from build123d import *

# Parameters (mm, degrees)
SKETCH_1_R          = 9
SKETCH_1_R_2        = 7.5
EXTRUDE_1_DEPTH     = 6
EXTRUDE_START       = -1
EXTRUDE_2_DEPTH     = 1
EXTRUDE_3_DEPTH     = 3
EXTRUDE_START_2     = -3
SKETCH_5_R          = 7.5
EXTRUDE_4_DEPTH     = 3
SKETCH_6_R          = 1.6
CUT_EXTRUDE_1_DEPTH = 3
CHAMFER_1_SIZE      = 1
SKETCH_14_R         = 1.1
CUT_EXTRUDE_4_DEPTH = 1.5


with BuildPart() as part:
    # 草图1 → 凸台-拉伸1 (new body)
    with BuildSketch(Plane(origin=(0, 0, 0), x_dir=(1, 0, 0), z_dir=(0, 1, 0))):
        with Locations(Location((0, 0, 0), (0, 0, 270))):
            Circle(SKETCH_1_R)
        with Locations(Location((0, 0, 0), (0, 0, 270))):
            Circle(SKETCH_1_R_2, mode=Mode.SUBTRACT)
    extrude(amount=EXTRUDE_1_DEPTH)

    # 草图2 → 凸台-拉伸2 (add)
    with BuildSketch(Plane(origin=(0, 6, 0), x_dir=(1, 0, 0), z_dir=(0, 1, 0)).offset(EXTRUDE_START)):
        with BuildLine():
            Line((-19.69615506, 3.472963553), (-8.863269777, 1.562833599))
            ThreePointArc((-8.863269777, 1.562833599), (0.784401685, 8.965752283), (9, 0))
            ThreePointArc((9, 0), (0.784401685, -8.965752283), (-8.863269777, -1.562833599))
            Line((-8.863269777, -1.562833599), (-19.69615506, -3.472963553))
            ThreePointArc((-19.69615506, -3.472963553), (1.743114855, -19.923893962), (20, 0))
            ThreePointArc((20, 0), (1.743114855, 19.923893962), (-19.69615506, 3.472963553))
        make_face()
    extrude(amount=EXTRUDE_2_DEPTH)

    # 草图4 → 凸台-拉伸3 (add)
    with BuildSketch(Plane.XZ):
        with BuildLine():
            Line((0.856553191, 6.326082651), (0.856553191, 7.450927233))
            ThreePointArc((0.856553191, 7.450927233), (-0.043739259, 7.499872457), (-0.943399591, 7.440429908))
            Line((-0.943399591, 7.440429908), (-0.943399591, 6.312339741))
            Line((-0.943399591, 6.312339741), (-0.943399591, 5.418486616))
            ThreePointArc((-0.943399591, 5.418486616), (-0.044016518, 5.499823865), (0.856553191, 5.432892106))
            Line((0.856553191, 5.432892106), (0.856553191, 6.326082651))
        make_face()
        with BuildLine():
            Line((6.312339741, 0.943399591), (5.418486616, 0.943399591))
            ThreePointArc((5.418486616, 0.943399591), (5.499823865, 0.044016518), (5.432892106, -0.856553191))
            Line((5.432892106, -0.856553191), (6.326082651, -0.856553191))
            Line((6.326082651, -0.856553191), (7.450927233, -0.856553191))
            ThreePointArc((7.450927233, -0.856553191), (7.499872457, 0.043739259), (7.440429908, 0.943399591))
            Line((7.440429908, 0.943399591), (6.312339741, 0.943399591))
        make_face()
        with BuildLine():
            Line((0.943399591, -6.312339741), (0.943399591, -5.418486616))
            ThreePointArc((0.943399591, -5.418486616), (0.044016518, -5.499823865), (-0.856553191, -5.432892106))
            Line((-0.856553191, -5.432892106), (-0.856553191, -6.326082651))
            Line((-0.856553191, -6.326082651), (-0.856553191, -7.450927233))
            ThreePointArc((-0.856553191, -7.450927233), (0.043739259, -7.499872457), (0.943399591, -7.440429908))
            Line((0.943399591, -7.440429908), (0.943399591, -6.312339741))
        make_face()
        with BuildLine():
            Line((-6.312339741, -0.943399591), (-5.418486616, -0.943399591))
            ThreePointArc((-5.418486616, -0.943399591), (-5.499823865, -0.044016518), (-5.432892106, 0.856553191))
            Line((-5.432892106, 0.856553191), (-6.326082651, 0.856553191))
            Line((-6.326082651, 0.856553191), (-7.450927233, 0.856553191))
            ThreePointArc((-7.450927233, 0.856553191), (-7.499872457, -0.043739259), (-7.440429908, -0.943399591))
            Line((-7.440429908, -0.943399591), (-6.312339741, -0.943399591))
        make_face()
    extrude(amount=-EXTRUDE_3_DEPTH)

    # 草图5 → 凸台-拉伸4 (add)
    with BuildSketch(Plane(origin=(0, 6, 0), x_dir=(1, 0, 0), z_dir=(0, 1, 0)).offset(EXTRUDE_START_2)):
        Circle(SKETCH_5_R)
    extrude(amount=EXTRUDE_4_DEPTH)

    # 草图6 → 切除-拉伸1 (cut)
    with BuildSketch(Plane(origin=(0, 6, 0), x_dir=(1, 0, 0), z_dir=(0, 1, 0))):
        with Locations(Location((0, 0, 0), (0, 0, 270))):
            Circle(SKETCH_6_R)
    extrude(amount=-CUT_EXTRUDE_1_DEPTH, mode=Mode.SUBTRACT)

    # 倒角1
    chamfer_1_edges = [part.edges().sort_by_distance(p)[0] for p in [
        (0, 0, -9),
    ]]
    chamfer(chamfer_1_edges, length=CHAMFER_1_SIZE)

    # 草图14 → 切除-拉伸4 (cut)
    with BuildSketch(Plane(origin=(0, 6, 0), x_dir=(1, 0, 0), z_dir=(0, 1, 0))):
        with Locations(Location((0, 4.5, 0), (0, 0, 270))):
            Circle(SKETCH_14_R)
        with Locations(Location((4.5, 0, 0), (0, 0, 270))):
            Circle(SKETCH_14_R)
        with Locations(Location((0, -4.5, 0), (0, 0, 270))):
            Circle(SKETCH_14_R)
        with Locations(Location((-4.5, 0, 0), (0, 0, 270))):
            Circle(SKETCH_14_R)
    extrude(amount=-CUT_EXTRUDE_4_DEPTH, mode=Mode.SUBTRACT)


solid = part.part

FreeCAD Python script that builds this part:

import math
import FreeCAD as App
import Part
import Sketcher
from FreeCAD import Vector
Q = App.Units.Quantity


def edges_at(feature, points):
    """Names of the edges that pass closest to the given points."""
    edges = feature.Shape.Edges
    near = lambda p: min(range(len(edges)), key=lambda i: edges[i].distToShape(Part.Vertex(*p))[0])
    return sorted({f"Edge{near(p) + 1}" for p in points})

doc = App.newDocument("Part")
body = doc.addObject("PartDesign::Body", "Body")

# Sketch on XZ plane
sketch1 = body.newObject("Sketcher::SketchObject", "Sketch")
sketch1.AttachmentSupport = (doc.getObject("XZ_Plane"), [""])
sketch1.MapMode = "FlatFace"
sketch1.addGeometry(Part.Circle(Vector(0, 0, 0), Vector(0, 0, 1), 9), False)
sketch1.addGeometry(Part.Circle(Vector(0, 0, 0), Vector(0, 0, 1), 7.5), False)
sketch1.addConstraint(Sketcher.Constraint("Coincident", 0, 3, -1, 1))
sketch1.addConstraint(Sketcher.Constraint("Coincident", 1, 3, -1, 1))
sketch1.addConstraint(Sketcher.Constraint("Diameter", 0, 18.0))
sketch1.addConstraint(Sketcher.Constraint("Diameter", 1, 15.0))
pad1 = body.newObject("PartDesign::Pad", "Pad")
pad1.Profile = sketch1
pad1.Length = 6
pad1.Reversed = True

# Sketch on XZ plane
sketch2 = body.newObject("Sketcher::SketchObject", "Sketch001")
sketch2.AttachmentSupport = (doc.getObject("XZ_Plane"), [""])
sketch2.MapMode = "FlatFace"
sketch2.AttachmentOffset = App.Placement(Vector(0, 0, -5), App.Rotation())
sketch2.addGeometry(Part.LineSegment(Vector(-19.696155, -3.472964, 0), Vector(-8.86327, -1.562834, 0)), False)
sketch2.addGeometry(Part.ArcOfCircle(Part.Circle(Vector(0, 0, 0), Vector(0, 0, 1), 9), math.radians(-170), math.radians(0)), False)
sketch2.addGeometry(Part.ArcOfCircle(Part.Circle(Vector(0, 0, 0), Vector(0, 0, 1), 9), math.radians(0), math.radians(170)), False)
sketch2.addGeometry(Part.LineSegment(Vector(-8.86327, 1.562834, 0), Vector(-19.696155, 3.472964, 0)), False)
sketch2.addGeometry(Part.ArcOfCircle(Part.Circle(Vector(0, 0, 0), Vector(0, 0, 1), 20), math.radians(0), math.radians(170)), False)
sketch2.addGeometry(Part.ArcOfCircle(Part.Circle(Vector(0, 0, 0), Vector(0, 0, 1), 20), math.radians(-170), math.radians(0)), False)
sketch2.addConstraint(Sketcher.Constraint("Coincident", 0, 2, 1, 1))
sketch2.addConstraint(Sketcher.Constraint("Tangent", 1, 2, 2, 1))
sketch2.addConstraint(Sketcher.Constraint("Coincident", 2, 2, 3, 1))
sketch2.addConstraint(Sketcher.Constraint("Coincident", 3, 2, 4, 2))
sketch2.addConstraint(Sketcher.Constraint("Tangent", 4, 1, 5, 2))
sketch2.addConstraint(Sketcher.Constraint("Coincident", 5, 1, 0, 1))
sketch2.addConstraint(Sketcher.Constraint("Coincident", 1, 3, -1, 1))
sketch2.addConstraint(Sketcher.Constraint("Coincident", 4, 3, -1, 1))
sketch2.addConstraint(Sketcher.Constraint("Equal", 1, 2))
sketch2.addConstraint(Sketcher.Constraint("Equal", 4, 5))
sketch2.addConstraint(Sketcher.Constraint("PointOnObject", 1, 2, -1))
sketch2.addConstraint(Sketcher.Constraint("PointOnObject", 4, 1, -1))
sketch2.addConstraint(Sketcher.Constraint("Vertical", 0, 2, 2, 2))
sketch2.addConstraint(Sketcher.Constraint("Vertical", 3, 2, 5, 1))
sketch2.addConstraint(Sketcher.Constraint("Radius", 1, 9.0))
sketch2.addConstraint(Sketcher.Constraint("Radius", 4, 20.0))
sketch2.addConstraint(Sketcher.Constraint("Angle", 0, Q("10 deg")))
sketch2.addConstraint(Sketcher.Constraint("DistanceX", 0, 2, -1, 1, 8.86327))
pad2 = body.newObject("PartDesign::Pad", "Pad001")
pad2.Profile = sketch2
pad2.Length = 1
pad2.Reversed = True

# Sketch on XZ plane
sketch3 = body.newObject("Sketcher::SketchObject", "Sketch002")
sketch3.AttachmentSupport = (doc.getObject("XZ_Plane"), [""])
sketch3.MapMode = "FlatFace"
sketch3.addGeometry(Part.ArcOfCircle(Part.Circle(Vector(0, 0, 0), Vector(0, 0, 1), 7.5), math.radians(83.442107), math.radians(97.226184)), False)
sketch3.addGeometry(Part.LineSegment(Vector(-0.9434, 7.44043, 0), Vector(-0.9434, 5.418487, 0)), False)
sketch3.addGeometry(Part.ArcOfCircle(Part.Circle(Vector(0, 0, 0), Vector(0, 0, 1), 5.5), math.radians(81.040461), math.radians(99.876625)), False)
sketch3.addGeometry(Part.LineSegment(Vector(0.856553, 5.432892, 0), Vector(0.856553, 7.450927, 0)), False)
sketch3.addGeometry(Part.ArcOfCircle(Part.Circle(Vector(0, 0, 0), Vector(0, 0, 1), 5.5), math.radians(-8.959539), math.radians(9.876625)), False)
sketch3.addGeometry(Part.LineSegment(Vector(5.432892, -0.856553, 0), Vector(7.450927, -0.856553, 0)), False)
sketch3.addGeometry(Part.ArcOfCircle(Part.Circle(Vector(0, 0, 0), Vector(0, 0, 1), 7.5), math.radians(-6.557893), math.radians(7.226184)), False)
sketch3.addGeometry(Part.LineSegment(Vector(7.44043, 0.9434, 0), Vector(5.418487, 0.9434, 0)), False)
sketch3.addGeometry(Part.ArcOfCircle(Part.Circle(Vector(0, 0, 0), Vector(0, 0, 1), 5.5), math.radians(-98.959539), math.radians(-80.123375)), False)
sketch3.addGeometry(Part.LineSegment(Vector(-0.856553, -5.432892, 0), Vector(-0.856553, -7.450927, 0)), False)
sketch3.addGeometry(Part.ArcOfCircle(Part.Circle(Vector(0, 0, 0), Vector(0, 0, 1), 7.5), math.radians(-96.557893), math.radians(-82.773816)), False)
sketch3.addGeometry(Part.LineSegment(Vector(0.9434, -7.44043, 0), Vector(0.9434, -5.418487, 0)), False)
sketch3.addGeometry(Part.ArcOfCircle(Part.Circle(Vector(0, 0, 0), Vector(0, 0, 1), 5.5), math.radians(171.040461), math.radians(189.876625)), False)
sketch3.addGeometry(Part.LineSegment(Vector(-5.432892, 0.856553, 0), Vector(-7.450927, 0.856553, 0)), False)
sketch3.addGeometry(Part.ArcOfCircle(Part.Circle(Vector(0, 0, 0), Vector(0, 0, 1), 7.5), math.radians(173.442107), math.radians(187.226184)), False)
sketch3.addGeometry(Part.LineSegment(Vector(-7.44043, -0.9434, 0), Vector(-5.418487, -0.9434, 0)), False)
sketch3.addConstraint(Sketcher.Constraint("Coincident", 0, 2, 1, 1))
sketch3.addConstraint(Sketcher.Constraint("Coincident", 1, 2, 2, 2))
sketch3.addConstraint(Sketcher.Constraint("Coincident", 2, 1, 3, 1))
sketch3.addConstraint(Sketcher.Constraint("Coincident", 3, 2, 0, 1))
sketch3.addConstraint(Sketcher.Constraint("Coincident", 4, 1, 5, 1))
sketch3.addConstraint(Sketcher.Constraint("Coincident", 5, 2, 6, 1))
sketch3.addConstraint(Sketcher.Constraint("Coincident", 6, 2, 7, 1))
sketch3.addConstraint(Sketcher.Constraint("Coincident", 7, 2, 4, 2))
sketch3.addConstraint(Sketcher.Constraint("Coincident", 8, 1, 9, 1))
sketch3.addConstraint(Sketcher.Constraint("Coincident", 9, 2, 10, 1))
sketch3.addConstraint(Sketcher.Constraint("Coincident", 10, 2, 11, 1))
sketch3.addConstraint(Sketcher.Constraint("Coincident", 11, 2, 8, 2))
sketch3.addConstraint(Sketcher.Constraint("Coincident", 12, 1, 13, 1))
sketch3.addConstraint(Sketcher.Constraint("Coincident", 13, 2, 14, 1))
sketch3.addConstraint(Sketcher.Constraint("Coincident", 14, 2, 15, 1))
sketch3.addConstraint(Sketcher.Constraint("Coincident", 15, 2, 12, 2))
sketch3.addConstraint(Sketcher.Constraint("Vertical", 1))
sketch3.addConstraint(Sketcher.Constraint("Vertical", 3))
sketch3.addConstraint(Sketcher.Constraint("Horizontal", 5))
sketch3.addConstraint(Sketcher.Constraint("Horizontal", 7))
sketch3.addConstraint(Sketcher.Constraint("Vertical", 9))
sketch3.addConstraint(Sketcher.Constraint("Vertical", 11))
sketch3.addConstraint(Sketcher.Constraint("Horizontal", 13))
sketch3.addConstraint(Sketcher.Constraint("Horizontal", 15))
sketch3.addConstraint(Sketcher.Constraint("Coincident", 0, 3, -1, 1))
sketch3.addConstraint(Sketcher.Constraint("Coincident", 2, 3, -1, 1))
sketch3.addConstraint(Sketcher.Constraint("Coincident", 4, 3, -1, 1))
sketch3.addConstraint(Sketcher.Constraint("Coincident", 6, 3, -1, 1))
sketch3.addConstraint(Sketcher.Constraint("Coincident", 8, 3, -1, 1))
sketch3.addConstraint(Sketcher.Constraint("Coincident", 10, 3, -1, 1))
sketch3.addConstraint(Sketcher.Constraint("Coincident", 12, 3, -1, 1))
sketch3.addConstraint(Sketcher.Constraint("Coincident", 14, 3, -1, 1))
sketch3.addConstraint(Sketcher.Constraint("Equal", 2, 4))
sketch3.addConstraint(Sketcher.Constraint("Equal", 0, 6))
sketch3.addConstraint(Sketcher.Constraint("Equal", 4, 8))
sketch3.addConstraint(Sketcher.Constraint("Equal", 6, 10))
sketch3.addConstraint(Sketcher.Constraint("Equal", 8, 12))
sketch3.addConstraint(Sketcher.Constraint("Equal", 10, 14))
sketch3.addConstraint(Sketcher.Constraint("Equal", 5, 13))
sketch3.addConstraint(Sketcher.Constraint("Equal", 7, 15))
sketch3.addConstraint(Sketcher.Constraint("Equal", 15, 1))
sketch3.addConstraint(Sketcher.Constraint("Equal", 13, 3))
sketch3.addConstraint(Sketcher.Constraint("Equal", 3, 9))
sketch3.addConstraint(Sketcher.Constraint("Equal", 1, 11))
sketch3.addConstraint(Sketcher.Constraint("Radius", 0, 7.5))
sketch3.addConstraint(Sketcher.Constraint("Radius", 2, 5.5))
sketch3.addConstraint(Sketcher.Constraint("DistanceX", 0, 2, -1, 1, 0.9434))
sketch3.addConstraint(Sketcher.Constraint("DistanceX", 5, 1, 5, 2, 2.018035))
pad3 = body.newObject("PartDesign::Pad", "Pad002")
pad3.Profile = sketch3
pad3.Length = 3
pad3.Reversed = True

# Sketch on XZ plane
sketch4 = body.newObject("Sketcher::SketchObject", "Sketch003")
sketch4.AttachmentSupport = (doc.getObject("XZ_Plane"), [""])
sketch4.MapMode = "FlatFace"
sketch4.AttachmentOffset = App.Placement(Vector(0, 0, -3), App.Rotation())
sketch4.addGeometry(Part.Circle(Vector(0, 0, 0), Vector(0, 0, 1), 7.5), False)
sketch4.addConstraint(Sketcher.Constraint("Coincident", 0, 3, -1, 1))
sketch4.addConstraint(Sketcher.Constraint("Diameter", 0, 15.0))
pad4 = body.newObject("PartDesign::Pad", "Pad003")
pad4.Profile = sketch4
pad4.Length = 3
pad4.Reversed = True

# Sketch on XZ plane
sketch5 = body.newObject("Sketcher::SketchObject", "Sketch004")
sketch5.AttachmentSupport = (doc.getObject("XZ_Plane"), [""])
sketch5.MapMode = "FlatFace"
sketch5.AttachmentOffset = App.Placement(Vector(0, 0, -6), App.Rotation())
sketch5.addGeometry(Part.Circle(Vector(0, 0, 0), Vector(0, 0, 1), 1.6), False)
sketch5.addConstraint(Sketcher.Constraint("Coincident", 0, 3, -1, 1))
sketch5.addConstraint(Sketcher.Constraint("Diameter", 0, 3.2))
pocket1 = body.newObject("PartDesign::Pocket", "Pocket")
pocket1.Profile = sketch5
pocket1.Length = 3
pocket1.Reversed = True
doc.recompute()

chamfer = body.newObject("PartDesign::Chamfer", "Chamfer")
chamfer.Base = (pocket1, edges_at(pocket1, [(0, 0, -9)]))
chamfer.Size = 1

# Sketch on XZ plane
sketch6 = body.newObject("Sketcher::SketchObject", "Sketch005")
sketch6.AttachmentSupport = (doc.getObject("XZ_Plane"), [""])
sketch6.MapMode = "FlatFace"
sketch6.AttachmentOffset = App.Placement(Vector(0, 0, -6), App.Rotation())
sketch6.addGeometry(Part.Circle(Vector(0, -4.5, 0), Vector(0, 0, 1), 1.1), False)
sketch6.addGeometry(Part.Circle(Vector(4.5, 0, 0), Vector(0, 0, 1), 1.1), False)
sketch6.addGeometry(Part.Circle(Vector(0, 4.5, 0), Vector(0, 0, 1), 1.1), False)
sketch6.addGeometry(Part.Circle(Vector(-4.5, 0, 0), Vector(0, 0, 1), 1.1), False)
sketch6.addConstraint(Sketcher.Constraint("Equal", 0, 1))
sketch6.addConstraint(Sketcher.Constraint("Equal", 1, 2))
sketch6.addConstraint(Sketcher.Constraint("Equal", 2, 3))
sketch6.addConstraint(Sketcher.Constraint("Symmetric", 0, 3, 2, 3, -1, 1))
sketch6.addConstraint(Sketcher.Constraint("Symmetric", 1, 3, 3, 3, -1, 1))
sketch6.addConstraint(Sketcher.Constraint("PointOnObject", 0, 3, -2))
sketch6.addConstraint(Sketcher.Constraint("PointOnObject", 1, 3, -1))
sketch6.addConstraint(Sketcher.Constraint("Diameter", 0, 2.2))
sketch6.addConstraint(Sketcher.Constraint("DistanceY", 0, 3, 2, 3, 9.0))
sketch6.addConstraint(Sketcher.Constraint("DistanceX", 3, 3, 1, 3, 9.0))
pocket2 = body.newObject("PartDesign::Pocket", "Pocket001")
pocket2.Profile = sketch6
pocket2.Length = 1.5
pocket2.Reversed = True

doc.recompute()
